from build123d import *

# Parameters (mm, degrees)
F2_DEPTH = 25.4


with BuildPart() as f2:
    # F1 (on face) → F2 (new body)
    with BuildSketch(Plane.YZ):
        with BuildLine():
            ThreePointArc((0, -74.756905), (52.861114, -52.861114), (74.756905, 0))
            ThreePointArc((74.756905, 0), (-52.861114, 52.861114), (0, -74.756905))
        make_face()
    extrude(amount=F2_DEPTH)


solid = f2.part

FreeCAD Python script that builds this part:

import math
import FreeCAD as App
import Part
import Sketcher
Q = App.Units.Quantity

doc = App.newDocument("Part")
body = doc.addObject("PartDesign::Body", "Body")

# Sketch on YZ plane
sketch1 = body.newObject("Sketcher::SketchObject", "Sketch")
sketch1.AttachmentSupport = (doc.getObject("YZ_Plane"), [""])
sketch1.MapMode = "FlatFace"
sketch1.addGeometry([
    Part.ArcOfCircle(Part.Circle(App.Vector(-0.000002, 0.000002, 0), App.Vector(0, 0, 1), 74.756907), math.radians(-89.999999), math.radians(-0.000001)),
    Part.ArcOfCircle(Part.Circle(App.Vector(0, 0, 0), App.Vector(0, 0, 1), 74.756905), math.radians(0), math.radians(270)),
], False)
sketch1.addConstraint([
    Sketcher.Constraint("Tangent", 0, 1, 1, 2),
    Sketcher.Constraint("Coincident", 1, 1, 0, 2),
    Sketcher.Constraint("Coincident", 0, 3, -1, 1),
    Sketcher.Constraint("PointOnObject", 0, 1, -2),
    Sketcher.Constraint("PointOnObject", 1, 1, -1),
    Sketcher.Constraint("Radius", 0, Q("74.756907 mm")),
])
pad1 = body.newObject("PartDesign::Pad", "Pad")
pad1.Profile = sketch1
pad1.Length = Q("1 in")

doc.recompute()
